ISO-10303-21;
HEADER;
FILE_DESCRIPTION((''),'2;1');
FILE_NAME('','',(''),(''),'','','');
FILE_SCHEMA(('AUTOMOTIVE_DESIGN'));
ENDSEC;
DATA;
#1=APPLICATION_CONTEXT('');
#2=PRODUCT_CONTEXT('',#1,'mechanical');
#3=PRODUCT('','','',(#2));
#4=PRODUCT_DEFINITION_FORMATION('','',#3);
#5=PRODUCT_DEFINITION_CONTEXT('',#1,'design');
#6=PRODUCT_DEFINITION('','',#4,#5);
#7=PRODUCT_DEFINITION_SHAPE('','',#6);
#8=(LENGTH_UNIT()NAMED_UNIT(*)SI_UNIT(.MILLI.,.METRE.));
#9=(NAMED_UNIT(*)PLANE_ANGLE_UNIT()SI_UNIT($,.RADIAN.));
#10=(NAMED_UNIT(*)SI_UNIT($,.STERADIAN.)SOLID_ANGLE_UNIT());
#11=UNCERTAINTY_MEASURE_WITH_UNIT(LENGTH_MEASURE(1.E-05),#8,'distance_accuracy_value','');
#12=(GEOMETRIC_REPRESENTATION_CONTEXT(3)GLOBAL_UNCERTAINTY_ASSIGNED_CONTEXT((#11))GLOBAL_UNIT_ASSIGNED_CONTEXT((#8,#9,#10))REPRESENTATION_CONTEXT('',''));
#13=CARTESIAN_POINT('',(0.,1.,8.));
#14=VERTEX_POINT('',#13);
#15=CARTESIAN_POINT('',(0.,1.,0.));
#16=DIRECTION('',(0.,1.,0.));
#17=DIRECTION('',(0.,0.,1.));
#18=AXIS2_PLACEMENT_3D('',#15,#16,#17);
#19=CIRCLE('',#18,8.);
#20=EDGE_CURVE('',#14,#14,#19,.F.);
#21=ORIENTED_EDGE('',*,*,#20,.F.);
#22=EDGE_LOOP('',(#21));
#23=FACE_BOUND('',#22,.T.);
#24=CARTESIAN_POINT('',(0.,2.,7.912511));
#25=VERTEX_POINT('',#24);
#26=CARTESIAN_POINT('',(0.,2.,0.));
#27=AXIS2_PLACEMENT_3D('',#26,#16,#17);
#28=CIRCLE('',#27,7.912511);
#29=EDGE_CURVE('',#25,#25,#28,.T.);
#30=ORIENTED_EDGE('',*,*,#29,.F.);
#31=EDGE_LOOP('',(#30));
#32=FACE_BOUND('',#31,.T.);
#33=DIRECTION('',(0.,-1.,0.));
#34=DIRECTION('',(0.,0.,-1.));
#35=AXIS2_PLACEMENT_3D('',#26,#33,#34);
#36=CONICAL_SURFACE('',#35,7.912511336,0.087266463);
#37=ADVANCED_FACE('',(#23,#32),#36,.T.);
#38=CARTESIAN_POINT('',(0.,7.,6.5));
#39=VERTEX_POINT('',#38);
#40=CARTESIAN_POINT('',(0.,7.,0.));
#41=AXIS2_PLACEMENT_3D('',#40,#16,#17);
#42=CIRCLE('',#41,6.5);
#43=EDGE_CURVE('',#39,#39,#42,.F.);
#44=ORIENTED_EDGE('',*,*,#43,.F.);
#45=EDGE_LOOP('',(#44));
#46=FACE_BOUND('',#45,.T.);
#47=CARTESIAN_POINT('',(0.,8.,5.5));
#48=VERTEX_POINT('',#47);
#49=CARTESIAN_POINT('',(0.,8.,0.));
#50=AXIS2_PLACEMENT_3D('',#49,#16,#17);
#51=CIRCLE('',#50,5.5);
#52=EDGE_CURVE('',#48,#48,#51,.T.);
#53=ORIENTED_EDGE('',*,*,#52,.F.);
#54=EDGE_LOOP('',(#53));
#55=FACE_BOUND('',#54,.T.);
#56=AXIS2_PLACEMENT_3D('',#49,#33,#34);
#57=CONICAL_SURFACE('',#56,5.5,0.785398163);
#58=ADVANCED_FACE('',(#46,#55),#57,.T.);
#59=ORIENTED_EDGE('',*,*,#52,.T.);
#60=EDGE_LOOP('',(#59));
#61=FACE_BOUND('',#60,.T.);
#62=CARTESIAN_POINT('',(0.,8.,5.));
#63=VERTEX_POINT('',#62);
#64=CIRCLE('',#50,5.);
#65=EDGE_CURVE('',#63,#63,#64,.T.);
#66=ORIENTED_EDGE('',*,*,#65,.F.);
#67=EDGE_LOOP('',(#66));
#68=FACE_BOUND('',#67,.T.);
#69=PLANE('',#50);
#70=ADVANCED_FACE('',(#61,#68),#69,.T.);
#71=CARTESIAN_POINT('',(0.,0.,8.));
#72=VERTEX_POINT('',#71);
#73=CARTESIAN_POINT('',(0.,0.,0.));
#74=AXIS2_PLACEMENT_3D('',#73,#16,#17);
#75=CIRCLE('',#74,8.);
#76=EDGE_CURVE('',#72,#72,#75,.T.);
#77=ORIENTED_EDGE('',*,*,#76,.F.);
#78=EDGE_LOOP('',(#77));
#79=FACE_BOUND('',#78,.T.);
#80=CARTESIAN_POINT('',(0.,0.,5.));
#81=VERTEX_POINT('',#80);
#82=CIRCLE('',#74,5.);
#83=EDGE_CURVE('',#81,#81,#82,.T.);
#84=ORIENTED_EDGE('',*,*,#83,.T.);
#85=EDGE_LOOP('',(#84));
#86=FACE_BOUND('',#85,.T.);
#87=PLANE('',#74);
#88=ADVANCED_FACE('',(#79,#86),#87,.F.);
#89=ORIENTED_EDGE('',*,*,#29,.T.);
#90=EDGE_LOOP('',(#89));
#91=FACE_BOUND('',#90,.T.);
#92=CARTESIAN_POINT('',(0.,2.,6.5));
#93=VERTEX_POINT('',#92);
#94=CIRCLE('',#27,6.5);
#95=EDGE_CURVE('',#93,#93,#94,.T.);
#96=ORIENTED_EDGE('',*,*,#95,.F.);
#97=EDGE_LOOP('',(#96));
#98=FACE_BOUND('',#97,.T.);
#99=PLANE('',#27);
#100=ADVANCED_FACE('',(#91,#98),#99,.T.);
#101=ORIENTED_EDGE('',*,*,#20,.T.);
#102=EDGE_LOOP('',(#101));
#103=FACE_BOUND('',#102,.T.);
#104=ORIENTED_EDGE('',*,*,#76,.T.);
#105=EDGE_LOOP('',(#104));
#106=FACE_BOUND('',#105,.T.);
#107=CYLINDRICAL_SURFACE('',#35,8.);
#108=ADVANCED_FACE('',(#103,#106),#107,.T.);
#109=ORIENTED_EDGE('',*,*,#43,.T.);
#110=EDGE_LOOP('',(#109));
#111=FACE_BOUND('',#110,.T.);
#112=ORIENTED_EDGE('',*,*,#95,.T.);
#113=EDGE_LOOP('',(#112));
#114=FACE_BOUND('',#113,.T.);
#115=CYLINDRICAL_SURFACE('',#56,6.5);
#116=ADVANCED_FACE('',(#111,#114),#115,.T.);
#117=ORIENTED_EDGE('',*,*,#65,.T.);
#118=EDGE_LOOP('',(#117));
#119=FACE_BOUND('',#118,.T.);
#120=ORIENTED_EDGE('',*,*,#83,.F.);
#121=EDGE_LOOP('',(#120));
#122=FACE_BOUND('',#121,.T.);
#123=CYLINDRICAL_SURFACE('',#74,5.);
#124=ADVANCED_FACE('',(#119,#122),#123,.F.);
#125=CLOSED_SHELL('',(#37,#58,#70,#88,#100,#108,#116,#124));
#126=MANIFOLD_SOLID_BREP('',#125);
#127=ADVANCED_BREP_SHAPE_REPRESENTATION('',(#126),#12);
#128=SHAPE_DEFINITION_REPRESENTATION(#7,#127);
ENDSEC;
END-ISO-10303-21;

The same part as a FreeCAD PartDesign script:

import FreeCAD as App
import Part
import Sketcher
from FreeCAD import Vector


def edges_at(feature, points):
    """Names of the edges that pass closest to the given points."""
    edges = feature.Shape.Edges
    near = lambda p: min(range(len(edges)), key=lambda i: edges[i].distToShape(Part.Vertex(*p))[0])
    return sorted({f"Edge{near(p) + 1}" for p in points})

doc = App.newDocument("Part")
body = doc.addObject("PartDesign::Body", "Body")

# Sketch on XZ plane
sketch1 = body.newObject("Sketcher::SketchObject", "Sketch")
sketch1.AttachmentSupport = (doc.getObject("XZ_Plane"), [""])
sketch1.MapMode = "FlatFace"
sketch1.addGeometry(Part.Circle(Vector(0, 0, 0), Vector(0, 0, 1), 8), False)
sketch1.addConstraint(Sketcher.Constraint("Coincident", 0, 3, -1, 1))
sketch1.addConstraint(Sketcher.Constraint("Diameter", 0, 16.0))
pad1 = body.newObject("PartDesign::Pad", "Pad")
pad1.Profile = sketch1
pad1.Length = 2
pad1.Reversed = True

# Sketch on XZ plane
sketch2 = body.newObject("Sketcher::SketchObject", "Sketch001")
sketch2.AttachmentSupport = (doc.getObject("XZ_Plane"), [""])
sketch2.MapMode = "FlatFace"
sketch2.AttachmentOffset = App.Placement(Vector(0, 0, -2), App.Rotation())
sketch2.addGeometry(Part.Circle(Vector(0, 0, 0), Vector(0, 0, 1), 6), False)
sketch2.addConstraint(Sketcher.Constraint("Coincident", 0, 3, -1, 1))
sketch2.addConstraint(Sketcher.Constraint("Diameter", 0, 13.0))
pad2 = body.newObject("PartDesign::Pad", "Pad001")
pad2.Profile = sketch2
pad2.Length = 6
pad2.Reversed = True

# Sketch on XZ plane
sketch3 = body.newObject("Sketcher::SketchObject", "Sketch002")
sketch3.AttachmentSupport = (doc.getObject("XZ_Plane"), [""])
sketch3.MapMode = "FlatFace"
sketch3.AttachmentOffset = App.Placement(Vector(0, 0, -8), App.Rotation())
sketch3.addGeometry(Part.Circle(Vector(0, 0, 0), Vector(0, 0, 1), 5), False)
sketch3.addConstraint(Sketcher.Constraint("Coincident", 0, 3, -1, 1))
sketch3.addConstraint(Sketcher.Constraint("Diameter", 0, 10.0))
pocket1 = body.newObject("PartDesign::Pocket", "Pocket")
pocket1.Profile = sketch3
pocket1.Length = 8
pocket1.Reversed = True
doc.recompute()

chamfer = body.newObject("PartDesign::Chamfer", "Chamfer")
chamfer.Base = (pocket1, edges_at(pocket1, [(0, 8, -6.5)]))
chamfer.Size = 1
doc.recompute()

chamfer2 = body.newObject("PartDesign::Chamfer", "Chamfer001")
chamfer2.Base = (chamfer, edges_at(chamfer, [(0, 2, -8)]))
chamfer2.ChamferType = "Two distances"
chamfer2.Size = 1
chamfer2.Size2 = 0.087489
chamfer2.FlipDirection = True

doc.recompute()
